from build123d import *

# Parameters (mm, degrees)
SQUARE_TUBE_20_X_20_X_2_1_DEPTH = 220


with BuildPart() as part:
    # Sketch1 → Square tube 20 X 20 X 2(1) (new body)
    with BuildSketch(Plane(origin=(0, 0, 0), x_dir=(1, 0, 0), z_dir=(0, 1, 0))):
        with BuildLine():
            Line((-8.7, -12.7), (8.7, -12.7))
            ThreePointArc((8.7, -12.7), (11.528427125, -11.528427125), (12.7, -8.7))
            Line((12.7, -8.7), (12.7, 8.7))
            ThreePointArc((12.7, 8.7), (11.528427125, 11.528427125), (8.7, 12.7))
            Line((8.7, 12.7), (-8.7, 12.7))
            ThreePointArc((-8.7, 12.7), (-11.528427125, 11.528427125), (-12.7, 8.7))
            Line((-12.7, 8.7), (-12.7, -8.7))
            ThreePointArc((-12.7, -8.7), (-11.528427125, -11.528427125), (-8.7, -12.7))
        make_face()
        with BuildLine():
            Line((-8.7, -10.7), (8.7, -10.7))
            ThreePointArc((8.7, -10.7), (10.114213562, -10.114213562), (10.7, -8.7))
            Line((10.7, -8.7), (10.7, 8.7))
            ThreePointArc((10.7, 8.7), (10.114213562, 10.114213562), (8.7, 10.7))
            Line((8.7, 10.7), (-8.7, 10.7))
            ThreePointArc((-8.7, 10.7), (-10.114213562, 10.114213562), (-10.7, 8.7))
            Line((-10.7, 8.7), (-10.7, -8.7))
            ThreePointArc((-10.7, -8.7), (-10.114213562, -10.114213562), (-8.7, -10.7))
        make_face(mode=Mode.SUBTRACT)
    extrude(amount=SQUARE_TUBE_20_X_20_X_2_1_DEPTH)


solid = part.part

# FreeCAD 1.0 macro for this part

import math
import FreeCAD as App
import Part
import Sketcher
Q = App.Units.Quantity

doc = App.newDocument("Part")
body = doc.addObject("PartDesign::Body", "Body")

# Sketch on XZ plane
sketch1 = body.newObject("Sketcher::SketchObject", "Sketch")
sketch1.AttachmentSupport = (doc.getObject("XZ_Plane"), [""])
sketch1.MapMode = "FlatFace"
sketch1.addGeometry(Part.LineSegment(App.Vector(-8.7, 12.7, 0), App.Vector(8.7, 12.7, 0)), False)
sketch1.addGeometry(Part.ArcOfCircle(Part.Circle(App.Vector(8.7, 8.7, 0), App.Vector(0, 0, 1), 4), math.radians(0), math.radians(90)), False)
sketch1.addGeometry(Part.LineSegment(App.Vector(12.7, 8.7, 0), App.Vector(12.7, -8.7, 0)), False)
sketch1.addGeometry(Part.ArcOfCircle(Part.Circle(App.Vector(8.7, -8.7, 0), App.Vector(0, 0, 1), 4), math.radians(-90), math.radians(0)), False)
sketch1.addGeometry(Part.LineSegment(App.Vector(8.7, -12.7, 0), App.Vector(-8.7, -12.7, 0)), False)
sketch1.addGeometry(Part.ArcOfCircle(Part.Circle(App.Vector(-8.7, -8.7, 0), App.Vector(0, 0, 1), 4), math.radians(180), math.radians(270)), False)
sketch1.addGeometry(Part.LineSegment(App.Vector(-12.7, -8.7, 0), App.Vector(-12.7, 8.7, 0)), False)
sketch1.addGeometry(Part.ArcOfCircle(Part.Circle(App.Vector(-8.7, 8.7, 0), App.Vector(0, 0, 1), 4), math.radians(90), math.radians(180)), False)
sketch1.addGeometry(Part.LineSegment(App.Vector(8.7, 10.7, 0), App.Vector(-8.7, 10.7, 0)), False)
sketch1.addGeometry(Part.ArcOfCircle(Part.Circle(App.Vector(-8.7, 8.7, 0), App.Vector(0, 0, 1), 2), math.radians(90), math.radians(180)), False)
sketch1.addGeometry(Part.LineSegment(App.Vector(-10.7, 8.7, 0), App.Vector(-10.7, -8.7, 0)), False)
sketch1.addGeometry(Part.ArcOfCircle(Part.Circle(App.Vector(-8.7, -8.7, 0), App.Vector(0, 0, 1), 2), math.radians(-180), math.radians(-90)), False)
sketch1.addGeometry(Part.LineSegment(App.Vector(-8.7, -10.7, 0), App.Vector(8.7, -10.7, 0)), False)
sketch1.addGeometry(Part.ArcOfCircle(Part.Circle(App.Vector(8.7, -8.7, 0), App.Vector(0, 0, 1), 2), math.radians(-90), math.radians(0)), False)
sketch1.addGeometry(Part.LineSegment(App.Vector(10.7, -8.7, 0), App.Vector(10.7, 8.7, 0)), False)
sketch1.addGeometry(Part.ArcOfCircle(Part.Circle(App.Vector(8.7, 8.7, 0), App.Vector(0, 0, 1), 2), math.radians(0), math.radians(90)), False)
sketch1.addConstraint(Sketcher.Constraint("Tangent", 0, 2, 1, 2))
sketch1.addConstraint(Sketcher.Constraint("Tangent", 1, 1, 2, 1))
sketch1.addConstraint(Sketcher.Constraint("Tangent", 2, 2, 3, 2))
sketch1.addConstraint(Sketcher.Constraint("Tangent", 3, 1, 4, 1))
sketch1.addConstraint(Sketcher.Constraint("Tangent", 4, 2, 5, 2))
sketch1.addConstraint(Sketcher.Constraint("Tangent", 5, 1, 6, 1))
sketch1.addConstraint(Sketcher.Constraint("Tangent", 6, 2, 7, 2))
sketch1.addConstraint(Sketcher.Constraint("Tangent", 7, 1, 0, 1))
sketch1.addConstraint(Sketcher.Constraint("Tangent", 8, 2, 9, 1))
sketch1.addConstraint(Sketcher.Constraint("Tangent", 9, 2, 10, 1))
sketch1.addConstraint(Sketcher.Constraint("Tangent", 10, 2, 11, 1))
sketch1.addConstraint(Sketcher.Constraint("Tangent", 11, 2, 12, 1))
sketch1.addConstraint(Sketcher.Constraint("Tangent", 12, 2, 13, 1))
sketch1.addConstraint(Sketcher.Constraint("Tangent", 13, 2, 14, 1))
sketch1.addConstraint(Sketcher.Constraint("Tangent", 14, 2, 15, 1))
sketch1.addConstraint(Sketcher.Constraint("Tangent", 15, 2, 8, 1))
sketch1.addConstraint(Sketcher.Constraint("Horizontal", 0))
sketch1.addConstraint(Sketcher.Constraint("Vertical", 2))
sketch1.addConstraint(Sketcher.Constraint("Horizontal", 4))
sketch1.addConstraint(Sketcher.Constraint("Vertical", 6))
sketch1.addConstraint(Sketcher.Constraint("Horizontal", 8))
sketch1.addConstraint(Sketcher.Constraint("Vertical", 10))
sketch1.addConstraint(Sketcher.Constraint("Horizontal", 12))
sketch1.addConstraint(Sketcher.Constraint("Vertical", 14))
sketch1.addConstraint(Sketcher.Constraint("Coincident", 9, 3, 7, 3))
sketch1.addConstraint(Sketcher.Constraint("Coincident", 11, 3, 5, 3))
sketch1.addConstraint(Sketcher.Constraint("Coincident", 13, 3, 3, 3))
sketch1.addConstraint(Sketcher.Constraint("Equal", 1, 3))
sketch1.addConstraint(Sketcher.Constraint("Equal", 3, 5))
sketch1.addConstraint(Sketcher.Constraint("Equal", 5, 7))
sketch1.addConstraint(Sketcher.Constraint("Equal", 13, 15))
sketch1.addConstraint(Sketcher.Constraint("Symmetric", 1, 3, 5, 3, -1, 1))
sketch1.addConstraint(Sketcher.Constraint("Equal", 12, 2))
sketch1.addConstraint(Sketcher.Constraint("Radius", 1, Q("4 mm")))
sketch1.addConstraint(Sketcher.Constraint("Radius", 9, Q("2 mm")))
sketch1.addConstraint(Sketcher.Constraint("DistanceX", 0, 1, 0, 2, Q("17.4 mm")))
pad1 = body.newObject("PartDesign::Pad", "Pad")
pad1.Profile = sketch1
pad1.Length = 220
pad1.Reversed = True

doc.recompute()
